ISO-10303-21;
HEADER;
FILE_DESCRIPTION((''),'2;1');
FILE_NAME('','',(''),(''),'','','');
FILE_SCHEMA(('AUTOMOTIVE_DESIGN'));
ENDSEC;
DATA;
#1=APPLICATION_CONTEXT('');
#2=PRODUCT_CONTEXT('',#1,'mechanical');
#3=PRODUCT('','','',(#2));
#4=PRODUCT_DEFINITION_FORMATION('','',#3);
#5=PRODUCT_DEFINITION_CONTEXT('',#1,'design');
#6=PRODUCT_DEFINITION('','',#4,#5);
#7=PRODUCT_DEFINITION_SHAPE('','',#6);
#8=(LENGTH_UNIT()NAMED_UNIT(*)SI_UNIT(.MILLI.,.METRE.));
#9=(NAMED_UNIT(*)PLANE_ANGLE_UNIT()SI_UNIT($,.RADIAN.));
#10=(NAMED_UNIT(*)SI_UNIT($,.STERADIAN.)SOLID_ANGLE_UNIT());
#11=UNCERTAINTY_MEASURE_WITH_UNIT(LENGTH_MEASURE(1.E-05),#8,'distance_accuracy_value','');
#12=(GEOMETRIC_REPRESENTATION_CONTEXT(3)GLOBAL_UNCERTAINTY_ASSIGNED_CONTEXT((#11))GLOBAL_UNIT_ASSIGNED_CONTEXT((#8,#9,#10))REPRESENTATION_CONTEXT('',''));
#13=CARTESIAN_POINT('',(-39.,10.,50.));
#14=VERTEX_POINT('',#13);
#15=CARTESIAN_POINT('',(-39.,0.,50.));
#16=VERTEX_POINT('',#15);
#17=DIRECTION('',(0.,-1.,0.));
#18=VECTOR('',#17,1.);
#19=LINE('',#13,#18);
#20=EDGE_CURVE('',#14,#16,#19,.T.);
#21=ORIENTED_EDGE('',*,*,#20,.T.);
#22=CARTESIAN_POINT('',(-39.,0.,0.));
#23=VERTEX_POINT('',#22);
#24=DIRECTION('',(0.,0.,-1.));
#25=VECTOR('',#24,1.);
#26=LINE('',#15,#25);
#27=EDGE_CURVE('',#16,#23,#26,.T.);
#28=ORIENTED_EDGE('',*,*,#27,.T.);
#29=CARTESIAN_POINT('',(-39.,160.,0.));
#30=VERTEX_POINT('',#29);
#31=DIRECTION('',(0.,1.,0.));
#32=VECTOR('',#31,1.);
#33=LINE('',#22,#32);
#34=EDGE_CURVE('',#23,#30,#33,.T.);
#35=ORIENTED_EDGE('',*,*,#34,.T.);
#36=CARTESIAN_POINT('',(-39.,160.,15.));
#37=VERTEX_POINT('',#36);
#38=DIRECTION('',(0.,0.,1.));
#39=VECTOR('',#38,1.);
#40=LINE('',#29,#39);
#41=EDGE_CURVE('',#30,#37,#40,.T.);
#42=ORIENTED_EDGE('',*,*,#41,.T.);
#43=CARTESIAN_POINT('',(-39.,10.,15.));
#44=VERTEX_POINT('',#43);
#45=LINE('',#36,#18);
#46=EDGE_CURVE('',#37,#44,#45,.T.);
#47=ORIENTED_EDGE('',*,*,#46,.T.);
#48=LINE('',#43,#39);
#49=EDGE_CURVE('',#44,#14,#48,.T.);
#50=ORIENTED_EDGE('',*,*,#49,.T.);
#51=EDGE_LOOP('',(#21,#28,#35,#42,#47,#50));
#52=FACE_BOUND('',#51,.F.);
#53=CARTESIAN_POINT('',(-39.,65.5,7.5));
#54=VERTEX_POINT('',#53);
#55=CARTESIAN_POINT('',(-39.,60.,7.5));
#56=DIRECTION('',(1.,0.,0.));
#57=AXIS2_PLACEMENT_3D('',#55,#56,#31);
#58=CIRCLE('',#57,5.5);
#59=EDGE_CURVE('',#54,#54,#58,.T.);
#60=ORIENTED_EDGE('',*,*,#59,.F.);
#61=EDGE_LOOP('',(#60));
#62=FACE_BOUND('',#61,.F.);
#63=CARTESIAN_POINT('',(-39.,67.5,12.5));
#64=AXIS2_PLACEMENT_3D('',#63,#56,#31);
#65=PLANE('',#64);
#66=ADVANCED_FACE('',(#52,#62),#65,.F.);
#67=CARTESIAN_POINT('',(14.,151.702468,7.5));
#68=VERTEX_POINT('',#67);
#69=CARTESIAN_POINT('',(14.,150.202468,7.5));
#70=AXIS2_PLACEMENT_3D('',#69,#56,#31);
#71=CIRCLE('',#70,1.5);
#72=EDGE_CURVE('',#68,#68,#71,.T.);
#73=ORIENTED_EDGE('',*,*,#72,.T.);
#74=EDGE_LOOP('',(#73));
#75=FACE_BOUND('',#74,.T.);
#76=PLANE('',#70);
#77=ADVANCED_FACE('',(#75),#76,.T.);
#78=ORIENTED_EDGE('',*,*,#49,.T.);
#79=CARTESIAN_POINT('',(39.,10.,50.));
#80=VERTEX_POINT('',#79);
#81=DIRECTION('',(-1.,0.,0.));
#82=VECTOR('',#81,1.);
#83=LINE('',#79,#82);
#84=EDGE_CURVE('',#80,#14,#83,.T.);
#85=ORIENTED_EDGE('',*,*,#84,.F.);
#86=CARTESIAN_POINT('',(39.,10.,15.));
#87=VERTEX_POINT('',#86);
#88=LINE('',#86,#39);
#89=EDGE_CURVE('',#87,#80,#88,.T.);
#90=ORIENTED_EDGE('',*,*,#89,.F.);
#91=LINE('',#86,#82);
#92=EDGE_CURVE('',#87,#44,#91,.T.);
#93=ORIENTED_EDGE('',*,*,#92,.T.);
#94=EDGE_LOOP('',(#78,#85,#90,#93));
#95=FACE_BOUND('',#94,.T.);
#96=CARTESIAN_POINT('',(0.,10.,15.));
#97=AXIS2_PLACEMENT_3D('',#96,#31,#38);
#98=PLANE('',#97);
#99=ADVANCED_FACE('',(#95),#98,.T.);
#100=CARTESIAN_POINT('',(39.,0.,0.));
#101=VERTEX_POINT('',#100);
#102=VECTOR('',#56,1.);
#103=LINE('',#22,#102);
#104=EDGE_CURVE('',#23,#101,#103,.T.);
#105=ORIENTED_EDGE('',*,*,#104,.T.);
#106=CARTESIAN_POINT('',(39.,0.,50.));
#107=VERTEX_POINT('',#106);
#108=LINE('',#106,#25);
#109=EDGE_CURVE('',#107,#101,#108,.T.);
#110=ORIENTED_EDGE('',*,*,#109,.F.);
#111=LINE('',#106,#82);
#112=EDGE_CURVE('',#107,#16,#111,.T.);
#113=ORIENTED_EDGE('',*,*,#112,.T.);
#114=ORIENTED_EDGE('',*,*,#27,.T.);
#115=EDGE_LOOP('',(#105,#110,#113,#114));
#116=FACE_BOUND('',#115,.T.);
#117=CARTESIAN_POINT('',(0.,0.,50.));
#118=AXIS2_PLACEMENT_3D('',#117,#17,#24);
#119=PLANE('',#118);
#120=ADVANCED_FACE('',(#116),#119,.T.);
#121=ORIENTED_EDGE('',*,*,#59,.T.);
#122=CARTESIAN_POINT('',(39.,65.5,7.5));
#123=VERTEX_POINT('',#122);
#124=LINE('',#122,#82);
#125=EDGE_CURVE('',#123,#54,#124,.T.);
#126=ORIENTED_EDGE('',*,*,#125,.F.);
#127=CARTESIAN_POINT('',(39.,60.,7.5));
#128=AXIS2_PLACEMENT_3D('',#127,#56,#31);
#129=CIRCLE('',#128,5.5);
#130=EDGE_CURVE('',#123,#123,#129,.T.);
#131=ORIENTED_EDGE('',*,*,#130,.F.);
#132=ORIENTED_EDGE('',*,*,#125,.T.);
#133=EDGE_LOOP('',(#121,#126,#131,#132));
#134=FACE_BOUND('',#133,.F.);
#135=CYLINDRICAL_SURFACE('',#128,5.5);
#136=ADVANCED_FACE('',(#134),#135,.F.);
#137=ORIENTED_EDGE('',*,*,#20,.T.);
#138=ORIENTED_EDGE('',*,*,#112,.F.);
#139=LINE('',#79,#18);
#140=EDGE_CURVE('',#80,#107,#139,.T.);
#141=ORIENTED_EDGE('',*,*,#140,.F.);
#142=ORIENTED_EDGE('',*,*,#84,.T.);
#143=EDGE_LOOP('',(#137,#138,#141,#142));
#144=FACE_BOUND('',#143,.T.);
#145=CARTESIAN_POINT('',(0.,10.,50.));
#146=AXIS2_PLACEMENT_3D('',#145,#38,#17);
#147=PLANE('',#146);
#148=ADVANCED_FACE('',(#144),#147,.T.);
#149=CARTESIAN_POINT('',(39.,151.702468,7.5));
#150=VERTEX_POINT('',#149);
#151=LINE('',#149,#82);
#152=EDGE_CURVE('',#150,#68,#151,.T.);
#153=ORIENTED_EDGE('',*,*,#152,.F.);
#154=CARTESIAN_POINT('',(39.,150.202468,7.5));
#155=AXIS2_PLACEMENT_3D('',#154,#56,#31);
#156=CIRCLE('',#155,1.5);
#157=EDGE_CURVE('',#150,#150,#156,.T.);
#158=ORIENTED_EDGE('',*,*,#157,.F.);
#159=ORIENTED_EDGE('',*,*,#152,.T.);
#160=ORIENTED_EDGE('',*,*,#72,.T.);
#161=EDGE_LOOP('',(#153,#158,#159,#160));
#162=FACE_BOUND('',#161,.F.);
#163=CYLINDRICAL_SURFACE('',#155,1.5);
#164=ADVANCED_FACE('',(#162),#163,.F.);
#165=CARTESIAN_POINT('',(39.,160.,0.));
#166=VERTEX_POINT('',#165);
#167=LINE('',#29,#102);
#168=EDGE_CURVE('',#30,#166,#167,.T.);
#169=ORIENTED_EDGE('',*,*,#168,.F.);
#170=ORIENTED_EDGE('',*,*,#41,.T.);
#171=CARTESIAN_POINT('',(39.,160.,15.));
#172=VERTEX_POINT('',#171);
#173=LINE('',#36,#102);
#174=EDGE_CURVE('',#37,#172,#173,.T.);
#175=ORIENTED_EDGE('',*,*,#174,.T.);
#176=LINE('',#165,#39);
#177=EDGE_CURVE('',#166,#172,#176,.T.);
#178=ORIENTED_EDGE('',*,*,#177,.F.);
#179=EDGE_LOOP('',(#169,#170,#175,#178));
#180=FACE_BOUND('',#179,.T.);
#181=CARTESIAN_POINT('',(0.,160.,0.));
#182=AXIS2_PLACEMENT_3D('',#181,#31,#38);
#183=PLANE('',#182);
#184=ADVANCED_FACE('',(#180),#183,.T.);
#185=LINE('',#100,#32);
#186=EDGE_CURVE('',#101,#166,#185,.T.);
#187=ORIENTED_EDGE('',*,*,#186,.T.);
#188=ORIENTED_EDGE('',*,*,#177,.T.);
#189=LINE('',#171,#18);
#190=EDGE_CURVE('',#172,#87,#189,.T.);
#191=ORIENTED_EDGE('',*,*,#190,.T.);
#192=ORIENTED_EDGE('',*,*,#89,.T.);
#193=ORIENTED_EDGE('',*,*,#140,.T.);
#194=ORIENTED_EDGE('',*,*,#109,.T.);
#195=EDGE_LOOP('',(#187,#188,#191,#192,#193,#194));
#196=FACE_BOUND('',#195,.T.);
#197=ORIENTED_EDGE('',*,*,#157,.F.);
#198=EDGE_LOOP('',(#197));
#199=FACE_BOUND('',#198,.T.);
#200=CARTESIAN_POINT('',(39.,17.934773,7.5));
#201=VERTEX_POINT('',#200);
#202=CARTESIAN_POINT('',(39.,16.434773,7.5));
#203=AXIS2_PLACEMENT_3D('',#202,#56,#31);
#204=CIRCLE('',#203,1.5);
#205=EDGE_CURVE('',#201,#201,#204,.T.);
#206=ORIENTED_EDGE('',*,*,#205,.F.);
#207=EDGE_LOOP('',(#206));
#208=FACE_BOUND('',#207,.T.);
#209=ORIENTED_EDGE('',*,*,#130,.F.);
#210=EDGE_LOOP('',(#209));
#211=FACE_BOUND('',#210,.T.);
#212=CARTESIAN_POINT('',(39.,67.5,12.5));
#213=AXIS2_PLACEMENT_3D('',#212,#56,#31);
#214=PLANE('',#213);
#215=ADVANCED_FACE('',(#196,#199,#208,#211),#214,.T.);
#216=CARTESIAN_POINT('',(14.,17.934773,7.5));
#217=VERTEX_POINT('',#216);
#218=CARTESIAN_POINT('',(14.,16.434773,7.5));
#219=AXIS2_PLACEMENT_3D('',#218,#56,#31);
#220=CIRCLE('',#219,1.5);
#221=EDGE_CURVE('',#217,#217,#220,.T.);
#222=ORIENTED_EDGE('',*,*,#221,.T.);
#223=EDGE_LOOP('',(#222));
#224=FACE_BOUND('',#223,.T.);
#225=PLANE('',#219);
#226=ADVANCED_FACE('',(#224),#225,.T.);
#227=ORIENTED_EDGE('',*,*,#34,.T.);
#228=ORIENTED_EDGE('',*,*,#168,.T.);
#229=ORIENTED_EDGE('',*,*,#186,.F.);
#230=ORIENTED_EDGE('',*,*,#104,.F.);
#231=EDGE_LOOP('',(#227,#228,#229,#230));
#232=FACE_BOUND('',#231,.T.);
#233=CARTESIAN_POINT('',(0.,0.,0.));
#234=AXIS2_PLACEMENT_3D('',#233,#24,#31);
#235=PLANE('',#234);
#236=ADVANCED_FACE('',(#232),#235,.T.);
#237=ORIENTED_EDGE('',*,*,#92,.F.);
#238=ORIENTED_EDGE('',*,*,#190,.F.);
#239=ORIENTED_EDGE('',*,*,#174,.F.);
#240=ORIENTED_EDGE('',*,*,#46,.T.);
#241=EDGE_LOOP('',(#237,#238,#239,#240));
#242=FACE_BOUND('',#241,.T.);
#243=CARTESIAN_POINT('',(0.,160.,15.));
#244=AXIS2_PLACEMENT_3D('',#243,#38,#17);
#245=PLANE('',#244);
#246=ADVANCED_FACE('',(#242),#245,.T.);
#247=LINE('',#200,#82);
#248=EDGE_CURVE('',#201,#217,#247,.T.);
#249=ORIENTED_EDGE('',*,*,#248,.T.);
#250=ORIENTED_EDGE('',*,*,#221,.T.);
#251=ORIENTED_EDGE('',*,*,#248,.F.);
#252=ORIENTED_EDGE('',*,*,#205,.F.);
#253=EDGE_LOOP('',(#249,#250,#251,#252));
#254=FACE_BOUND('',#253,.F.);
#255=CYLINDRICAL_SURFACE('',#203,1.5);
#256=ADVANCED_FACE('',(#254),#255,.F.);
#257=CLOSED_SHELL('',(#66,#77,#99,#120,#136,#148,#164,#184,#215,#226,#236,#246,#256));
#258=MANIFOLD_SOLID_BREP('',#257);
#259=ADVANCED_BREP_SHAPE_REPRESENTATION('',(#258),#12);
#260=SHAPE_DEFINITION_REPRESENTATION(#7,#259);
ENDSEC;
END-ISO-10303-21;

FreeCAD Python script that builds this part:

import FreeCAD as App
import Part
import Sketcher
from FreeCAD import Vector

doc = App.newDocument("Part")
body = doc.addObject("PartDesign::Body", "Body")

# Sketch on YZ plane
sketch1 = body.newObject("Sketcher::SketchObject", "Sketch")
sketch1.AttachmentSupport = (doc.getObject("YZ_Plane"), [""])
sketch1.MapMode = "FlatFace"
sketch1.addGeometry([
    Part.LineSegment(Vector(0, 50, 0), Vector(0, 0, 0)),  # 0
    Part.LineSegment(Vector(0, 0, 0), Vector(160, 0, 0)),  # 1
    Part.LineSegment(Vector(160, 0, 0), Vector(160, 15, 0)),  # 2
    Part.LineSegment(Vector(160, 15, 0), Vector(10, 15, 0)),  # 3
    Part.LineSegment(Vector(10, 15, 0), Vector(10, 50, 0)),  # 4
    Part.LineSegment(Vector(10, 50, 0), Vector(0, 50, 0)),  # 5
], False)
sketch1.addConstraint([
    Sketcher.Constraint("Coincident", 0, 2, 1, 1),
    Sketcher.Constraint("Coincident", 1, 2, 2, 1),
    Sketcher.Constraint("Coincident", 2, 2, 3, 1),
    Sketcher.Constraint("Coincident", 3, 2, 4, 1),
    Sketcher.Constraint("Coincident", 4, 2, 5, 1),
    Sketcher.Constraint("Coincident", 5, 2, 0, 1),
    Sketcher.Constraint("Vertical", 0),
    Sketcher.Constraint("Horizontal", 1),
    Sketcher.Constraint("Vertical", 2),
    Sketcher.Constraint("Horizontal", 3),
    Sketcher.Constraint("Vertical", 4),
    Sketcher.Constraint("Horizontal", 5),
    Sketcher.Constraint("Coincident", 0, 2, -1, 1),
    Sketcher.Constraint("DistanceX", 1, 1, 1, 2, 160.0),
    Sketcher.Constraint("DistanceX", 3, 2, 3, 1, 150.0),
    Sketcher.Constraint("DistanceY", 0, 2, 0, 1, 50.0),
    Sketcher.Constraint("DistanceY", 2, 1, 2, 2, 15.0),
])
pad1 = body.newObject("PartDesign::Pad", "Pad")
pad1.Profile = sketch1
pad1.Length = 78
pad1.Midplane = True

# Sketch on YZ plane
sketch2 = body.newObject("Sketcher::SketchObject", "Sketch001")
sketch2.AttachmentSupport = (doc.getObject("YZ_Plane"), [""])
sketch2.MapMode = "FlatFace"
sketch2.AttachmentOffset = App.Placement(Vector(0, 0, 39), App.Rotation())
sketch2.addGeometry(Part.Circle(Vector(60, 7.5, 0), Vector(0, 0, 1), 5.5), False)
sketch2.addConstraint([
    Sketcher.Constraint("Diameter", 0, 11.0),
    Sketcher.Constraint("DistanceX", -1, 1, 0, 3, 60.0),
    Sketcher.Constraint("DistanceY", -1, 1, 0, 3, 7.5),
])
pocket1 = body.newObject("PartDesign::Pocket", "Pocket")
pocket1.Profile = sketch2
pocket1.Length = 100

# Sketch on YZ plane
sketch3 = body.newObject("Sketcher::SketchObject", "Sketch002")
sketch3.AttachmentSupport = (doc.getObject("YZ_Plane"), [""])
sketch3.MapMode = "FlatFace"
sketch3.AttachmentOffset = App.Placement(Vector(0, 0, 39), App.Rotation())
sketch3.addGeometry([
    Part.Circle(Vector(150.202468, 7.5, 0), Vector(0, 0, 1), 1.5),
    Part.Circle(Vector(16.434773, 7.5, 0), Vector(0, 0, 1), 1.5),
], False)
sketch3.addConstraint([
    Sketcher.Constraint("Equal", 0, 1),
    Sketcher.Constraint("Horizontal", 0, 3, 1, 3),
    Sketcher.Constraint("Diameter", 0, 3.0),
    Sketcher.Constraint("DistanceY", -1, 1, 0, 3, 7.5),
    Sketcher.Constraint("DistanceX", -1, 1, 0, 3, 150.202468),
    Sketcher.Constraint("DistanceX", -1, 1, 1, 3, 16.434773),
])
pocket2 = body.newObject("PartDesign::Pocket", "Pocket001")
pocket2.Profile = sketch3
pocket2.Length = 25

doc.recompute()
